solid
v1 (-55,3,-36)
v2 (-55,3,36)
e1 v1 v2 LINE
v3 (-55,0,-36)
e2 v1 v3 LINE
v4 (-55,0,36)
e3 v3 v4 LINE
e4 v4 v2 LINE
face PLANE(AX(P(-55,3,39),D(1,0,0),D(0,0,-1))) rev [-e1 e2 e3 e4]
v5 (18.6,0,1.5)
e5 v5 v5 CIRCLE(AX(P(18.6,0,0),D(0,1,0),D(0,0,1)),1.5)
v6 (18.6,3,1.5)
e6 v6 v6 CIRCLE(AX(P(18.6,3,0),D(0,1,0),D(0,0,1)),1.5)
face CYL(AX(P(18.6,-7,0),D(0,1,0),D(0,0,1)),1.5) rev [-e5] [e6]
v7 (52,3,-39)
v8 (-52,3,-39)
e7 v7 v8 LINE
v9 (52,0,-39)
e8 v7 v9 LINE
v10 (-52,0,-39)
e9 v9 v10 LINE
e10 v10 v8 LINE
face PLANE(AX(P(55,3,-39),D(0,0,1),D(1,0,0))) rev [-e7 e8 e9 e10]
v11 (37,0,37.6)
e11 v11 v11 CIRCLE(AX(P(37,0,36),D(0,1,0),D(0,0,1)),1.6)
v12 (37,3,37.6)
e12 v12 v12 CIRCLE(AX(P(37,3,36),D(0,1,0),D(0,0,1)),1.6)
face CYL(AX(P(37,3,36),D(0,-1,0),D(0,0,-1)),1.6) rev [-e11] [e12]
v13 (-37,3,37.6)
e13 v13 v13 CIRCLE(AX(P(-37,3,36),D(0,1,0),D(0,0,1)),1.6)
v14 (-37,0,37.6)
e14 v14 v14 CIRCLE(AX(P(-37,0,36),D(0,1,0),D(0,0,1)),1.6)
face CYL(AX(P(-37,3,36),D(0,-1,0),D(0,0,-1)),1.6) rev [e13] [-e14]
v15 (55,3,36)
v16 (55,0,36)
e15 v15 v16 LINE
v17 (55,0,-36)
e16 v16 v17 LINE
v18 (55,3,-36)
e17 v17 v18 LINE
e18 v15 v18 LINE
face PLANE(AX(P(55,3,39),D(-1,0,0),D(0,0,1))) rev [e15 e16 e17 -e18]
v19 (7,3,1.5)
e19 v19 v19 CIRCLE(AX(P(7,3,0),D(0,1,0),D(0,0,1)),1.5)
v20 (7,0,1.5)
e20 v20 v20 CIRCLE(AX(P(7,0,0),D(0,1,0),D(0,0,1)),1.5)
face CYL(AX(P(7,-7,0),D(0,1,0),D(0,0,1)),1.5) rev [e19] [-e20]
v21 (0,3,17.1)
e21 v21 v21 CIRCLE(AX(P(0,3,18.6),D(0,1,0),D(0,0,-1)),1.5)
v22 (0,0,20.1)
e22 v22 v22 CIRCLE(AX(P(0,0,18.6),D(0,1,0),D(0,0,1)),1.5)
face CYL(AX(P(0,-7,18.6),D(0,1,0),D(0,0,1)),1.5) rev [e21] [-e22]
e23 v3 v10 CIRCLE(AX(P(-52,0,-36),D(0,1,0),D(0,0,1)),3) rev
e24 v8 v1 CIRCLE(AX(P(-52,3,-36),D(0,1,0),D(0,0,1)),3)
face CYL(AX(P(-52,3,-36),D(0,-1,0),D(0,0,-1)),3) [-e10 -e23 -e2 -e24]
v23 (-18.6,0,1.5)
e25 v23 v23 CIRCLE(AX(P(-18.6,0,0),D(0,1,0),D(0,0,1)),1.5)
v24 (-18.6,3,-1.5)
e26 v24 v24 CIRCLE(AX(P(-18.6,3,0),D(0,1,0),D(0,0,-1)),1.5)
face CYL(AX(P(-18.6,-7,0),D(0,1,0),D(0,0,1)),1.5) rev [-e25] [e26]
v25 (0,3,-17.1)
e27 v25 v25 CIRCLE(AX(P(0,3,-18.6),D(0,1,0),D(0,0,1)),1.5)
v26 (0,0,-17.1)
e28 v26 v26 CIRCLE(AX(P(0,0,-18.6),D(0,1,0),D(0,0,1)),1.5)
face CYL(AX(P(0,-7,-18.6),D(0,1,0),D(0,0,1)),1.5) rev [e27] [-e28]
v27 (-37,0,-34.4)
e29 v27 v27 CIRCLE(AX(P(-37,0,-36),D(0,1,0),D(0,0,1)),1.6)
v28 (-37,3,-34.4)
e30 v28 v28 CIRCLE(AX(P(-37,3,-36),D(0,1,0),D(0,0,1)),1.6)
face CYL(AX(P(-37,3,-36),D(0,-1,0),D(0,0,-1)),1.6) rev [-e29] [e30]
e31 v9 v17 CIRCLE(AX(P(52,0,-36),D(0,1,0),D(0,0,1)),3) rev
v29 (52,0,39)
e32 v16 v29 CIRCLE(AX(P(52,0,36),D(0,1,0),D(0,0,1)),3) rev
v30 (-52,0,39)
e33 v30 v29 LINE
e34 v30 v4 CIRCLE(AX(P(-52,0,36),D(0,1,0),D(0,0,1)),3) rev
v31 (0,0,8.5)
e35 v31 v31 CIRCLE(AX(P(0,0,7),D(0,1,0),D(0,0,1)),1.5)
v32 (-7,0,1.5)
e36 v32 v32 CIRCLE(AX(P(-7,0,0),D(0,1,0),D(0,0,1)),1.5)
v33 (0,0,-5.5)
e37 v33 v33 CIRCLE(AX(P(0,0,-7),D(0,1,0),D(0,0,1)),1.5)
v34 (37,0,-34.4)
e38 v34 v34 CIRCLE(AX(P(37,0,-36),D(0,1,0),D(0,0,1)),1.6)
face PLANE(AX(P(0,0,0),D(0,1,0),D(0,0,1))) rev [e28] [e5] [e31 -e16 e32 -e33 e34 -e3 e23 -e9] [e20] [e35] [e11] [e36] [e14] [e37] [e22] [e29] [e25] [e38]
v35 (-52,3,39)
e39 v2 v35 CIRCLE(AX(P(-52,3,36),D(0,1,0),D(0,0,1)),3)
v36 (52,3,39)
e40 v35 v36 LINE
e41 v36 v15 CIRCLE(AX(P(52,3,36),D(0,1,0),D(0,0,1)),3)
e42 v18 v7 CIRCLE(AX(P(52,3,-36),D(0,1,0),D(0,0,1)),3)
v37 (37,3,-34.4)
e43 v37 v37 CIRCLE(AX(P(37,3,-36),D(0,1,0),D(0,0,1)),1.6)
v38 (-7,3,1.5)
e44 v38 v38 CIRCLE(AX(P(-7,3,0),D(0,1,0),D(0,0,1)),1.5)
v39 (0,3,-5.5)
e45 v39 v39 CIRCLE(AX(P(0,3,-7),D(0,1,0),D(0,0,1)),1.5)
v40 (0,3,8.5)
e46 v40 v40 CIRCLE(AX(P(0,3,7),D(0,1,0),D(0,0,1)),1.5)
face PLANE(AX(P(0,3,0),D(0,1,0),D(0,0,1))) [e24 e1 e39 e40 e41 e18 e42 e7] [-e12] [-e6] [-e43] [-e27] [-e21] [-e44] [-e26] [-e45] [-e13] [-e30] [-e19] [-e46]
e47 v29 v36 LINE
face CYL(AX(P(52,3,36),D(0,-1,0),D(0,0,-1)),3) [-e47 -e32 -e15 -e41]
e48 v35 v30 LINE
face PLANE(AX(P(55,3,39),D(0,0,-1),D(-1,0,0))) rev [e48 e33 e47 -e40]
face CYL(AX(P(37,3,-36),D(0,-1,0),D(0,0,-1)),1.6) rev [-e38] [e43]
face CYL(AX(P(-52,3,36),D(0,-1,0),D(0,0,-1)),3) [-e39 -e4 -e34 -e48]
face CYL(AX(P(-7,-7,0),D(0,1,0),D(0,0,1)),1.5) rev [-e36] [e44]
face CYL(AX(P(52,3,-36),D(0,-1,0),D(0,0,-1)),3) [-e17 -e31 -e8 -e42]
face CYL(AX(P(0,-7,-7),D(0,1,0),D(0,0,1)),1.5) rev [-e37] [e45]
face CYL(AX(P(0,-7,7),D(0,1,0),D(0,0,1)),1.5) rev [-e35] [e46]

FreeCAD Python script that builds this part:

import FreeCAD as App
import Part
import Sketcher
from FreeCAD import Vector


def edges_at(feature, points):
    """Names of the edges that pass closest to the given points."""
    edges = feature.Shape.Edges
    near = lambda p: min(range(len(edges)), key=lambda i: edges[i].distToShape(Part.Vertex(*p))[0])
    return sorted({f"Edge{near(p) + 1}" for p in points})

doc = App.newDocument("Part")
body = doc.addObject("PartDesign::Body", "Body")

sketch1 = body.newObject("Sketcher::SketchObject", "Sketch")
sketch1.AttachmentSupport = (doc.getObject("XZ_Plane"), [""])
sketch1.MapMode = "FlatFace"
sketch1.addGeometry(Part.LineSegment(Vector(-55, -39, 0), Vector(-55, 39, 0)), False)
sketch1.addGeometry(Part.LineSegment(Vector(-55, 39, 0), Vector(55, 39, 0)), False)
sketch1.addGeometry(Part.LineSegment(Vector(55, 39, 0), Vector(55, -39, 0)), False)
sketch1.addGeometry(Part.LineSegment(Vector(55, -39, 0), Vector(-55, -39, 0)), False)
sketch1.addGeometry(Part.Circle(Vector(-37, 36, 0), Vector(0, 0, 1), 1.6), False)
sketch1.addGeometry(Part.Circle(Vector(37, 36, 0), Vector(0, 0, 1), 1.6), False)
sketch1.addGeometry(Part.Circle(Vector(-37, -36, 0), Vector(0, 0, 1), 1.6), False)
sketch1.addGeometry(Part.Circle(Vector(37, -36, 0), Vector(0, 0, 1), 1.6), False)
sketch1.addConstraint(Sketcher.Constraint("Coincident", 0, 2, 1, 1))
sketch1.addConstraint(Sketcher.Constraint("Coincident", 1, 2, 2, 1))
sketch1.addConstraint(Sketcher.Constraint("Coincident", 2, 2, 3, 1))
sketch1.addConstraint(Sketcher.Constraint("Coincident", 3, 2, 0, 1))
sketch1.addConstraint(Sketcher.Constraint("Vertical", 0))
sketch1.addConstraint(Sketcher.Constraint("Horizontal", 1))
sketch1.addConstraint(Sketcher.Constraint("Vertical", 2))
sketch1.addConstraint(Sketcher.Constraint("Horizontal", 3))
sketch1.addConstraint(Sketcher.Constraint("Equal", 4, 5))
sketch1.addConstraint(Sketcher.Constraint("Equal", 5, 6))
sketch1.addConstraint(Sketcher.Constraint("Equal", 6, 7))
sketch1.addConstraint(Sketcher.Constraint("Symmetric", 5, 3, 6, 3, -1, 1))
sketch1.addConstraint(Sketcher.Constraint("Symmetric", 4, 3, 7, 3, -1, 1))
sketch1.addConstraint(Sketcher.Constraint("Symmetric", 0, 2, 2, 2, -1, 1))
sketch1.addConstraint(Sketcher.Constraint("Symmetric", 4, 3, 5, 3, -2))
sketch1.addConstraint(Sketcher.Constraint("Diameter", 4, 3.2))
sketch1.addConstraint(Sketcher.Constraint("DistanceX", 1, 1, 1, 2, 110.0))
sketch1.addConstraint(Sketcher.Constraint("DistanceY", 0, 1, 0, 2, 78.0))
sketch1.addConstraint(Sketcher.Constraint("DistanceX", 4, 3, -1, 1, 37.0))
sketch1.addConstraint(Sketcher.Constraint("DistanceY", -1, 1, 4, 3, 36.0))
pad1 = body.newObject("PartDesign::Pad", "Pad")
pad1.Profile = sketch1
pad1.Length = 3
pad1.Reversed = True
doc.recompute()

fillet = body.newObject("PartDesign::Fillet", "Fillet")
fillet.Base = (pad1, edges_at(pad1, [
    (-55, 1.5, -39),
    (55, 1.5, -39),
    (55, 1.5, 39),
    (-55, 1.5, 39),
]))
fillet.Radius = 3

sketch2 = body.newObject("Sketcher::SketchObject", "Sketch001")
sketch2.AttachmentSupport = (doc.getObject("XZ_Plane"), [""])
sketch2.MapMode = "FlatFace"
sketch2.AttachmentOffset = App.Placement(Vector(0, 0, -3), App.Rotation())
sketch2.addGeometry(Part.Circle(Vector(0, -7, 0), Vector(0, 0, 1), 1.5), False)
sketch2.addGeometry(Part.Circle(Vector(7, 0, 0), Vector(0, 0, 1), 1.5), False)
sketch2.addGeometry(Part.Circle(Vector(0, 7, 0), Vector(0, 0, 1), 1.5), False)
sketch2.addGeometry(Part.Circle(Vector(-7, 0, 0), Vector(0, 0, 1), 1.5), False)
sketch2.addGeometry(Part.Circle(Vector(18.6, 0, 0), Vector(0, 0, 1), 1.5), False)
sketch2.addGeometry(Part.Circle(Vector(-18.6, 0, 0), Vector(0, 0, 1), 1.5), False)
sketch2.addGeometry(Part.Circle(Vector(0, -18.6, 0), Vector(0, 0, 1), 1.5), False)
sketch2.addGeometry(Part.Circle(Vector(0, 18.6, 0), Vector(0, 0, 1), 1.5), False)
sketch2.addConstraint(Sketcher.Constraint("Equal", 0, 1))
sketch2.addConstraint(Sketcher.Constraint("Equal", 1, 2))
sketch2.addConstraint(Sketcher.Constraint("Equal", 2, 3))
sketch2.addConstraint(Sketcher.Constraint("Equal", 3, 4))
sketch2.addConstraint(Sketcher.Constraint("Equal", 4, 5))
sketch2.addConstraint(Sketcher.Constraint("Equal", 5, 6))
sketch2.addConstraint(Sketcher.Constraint("Equal", 6, 7))
sketch2.addConstraint(Sketcher.Constraint("Symmetric", 0, 3, 2, 3, -1, 1))
sketch2.addConstraint(Sketcher.Constraint("Symmetric", 1, 3, 3, 3, -1, 1))
sketch2.addConstraint(Sketcher.Constraint("Symmetric", 4, 3, 5, 3, -1, 1))
sketch2.addConstraint(Sketcher.Constraint("Symmetric", 6, 3, 7, 3, -1, 1))
sketch2.addConstraint(Sketcher.Constraint("PointOnObject", 0, 3, -2))
sketch2.addConstraint(Sketcher.Constraint("PointOnObject", 1, 3, -1))
sketch2.addConstraint(Sketcher.Constraint("PointOnObject", 4, 3, -1))
sketch2.addConstraint(Sketcher.Constraint("PointOnObject", 6, 3, -2))
sketch2.addConstraint(Sketcher.Constraint("Diameter", 0, 3.0))
sketch2.addConstraint(Sketcher.Constraint("DistanceY", 0, 3, -1, 1, 7.0))
sketch2.addConstraint(Sketcher.Constraint("DistanceX", -1, 1, 1, 3, 7.0))
sketch2.addConstraint(Sketcher.Constraint("DistanceX", -1, 1, 4, 3, 18.6))
sketch2.addConstraint(Sketcher.Constraint("DistanceY", 6, 3, -1, 1, 18.6))
pocket1 = body.newObject("PartDesign::Pocket", "Pocket")
pocket1.Profile = sketch2
pocket1.Length = 10
pocket1.Reversed = True

doc.recompute()
